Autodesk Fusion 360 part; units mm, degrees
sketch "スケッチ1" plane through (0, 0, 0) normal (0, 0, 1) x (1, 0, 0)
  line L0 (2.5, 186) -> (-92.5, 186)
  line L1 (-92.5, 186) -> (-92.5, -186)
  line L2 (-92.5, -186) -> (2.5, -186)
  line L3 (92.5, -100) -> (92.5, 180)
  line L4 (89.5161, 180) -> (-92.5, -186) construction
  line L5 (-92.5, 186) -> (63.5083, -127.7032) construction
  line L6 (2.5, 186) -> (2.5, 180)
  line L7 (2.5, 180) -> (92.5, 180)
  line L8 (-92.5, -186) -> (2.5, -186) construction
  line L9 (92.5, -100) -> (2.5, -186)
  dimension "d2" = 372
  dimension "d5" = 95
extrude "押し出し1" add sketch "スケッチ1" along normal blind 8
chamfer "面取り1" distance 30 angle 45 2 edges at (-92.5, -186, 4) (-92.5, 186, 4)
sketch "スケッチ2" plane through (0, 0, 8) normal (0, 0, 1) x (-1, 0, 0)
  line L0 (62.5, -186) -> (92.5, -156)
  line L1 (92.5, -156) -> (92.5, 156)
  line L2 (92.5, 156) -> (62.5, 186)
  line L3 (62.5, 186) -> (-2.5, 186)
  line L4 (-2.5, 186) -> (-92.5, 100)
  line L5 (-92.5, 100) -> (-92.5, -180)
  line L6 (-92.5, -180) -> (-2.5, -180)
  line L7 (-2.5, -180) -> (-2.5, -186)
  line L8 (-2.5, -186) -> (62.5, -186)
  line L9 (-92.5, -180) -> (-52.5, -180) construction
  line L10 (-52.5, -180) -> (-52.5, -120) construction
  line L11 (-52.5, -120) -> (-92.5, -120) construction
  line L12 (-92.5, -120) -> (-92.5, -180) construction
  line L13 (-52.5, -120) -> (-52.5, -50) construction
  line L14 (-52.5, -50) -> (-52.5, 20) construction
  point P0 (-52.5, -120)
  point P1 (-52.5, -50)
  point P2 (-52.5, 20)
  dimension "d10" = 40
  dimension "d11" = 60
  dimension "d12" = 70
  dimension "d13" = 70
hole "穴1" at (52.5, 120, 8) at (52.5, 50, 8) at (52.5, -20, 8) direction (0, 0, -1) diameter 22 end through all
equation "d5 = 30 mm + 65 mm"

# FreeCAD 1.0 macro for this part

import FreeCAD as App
import Part
import Sketcher

V = App.Vector


def edges_at(feature, points):
    """Names of the edges that pass closest to the given points."""
    edges = feature.Shape.Edges
    near = lambda p: min(range(len(edges)), key=lambda i: edges[i].distToShape(Part.Vertex(*p))[0])
    return sorted({f"Edge{near(p) + 1}" for p in points})


def add_polygon(sketch, points):
    """Adds a closed chain of lines whose ends are joined by coincident constraints."""
    first, n = sketch.GeometryCount, len(points)
    for a, b in zip(points, points[1:] + points[:1]):
        sketch.addGeometry(Part.LineSegment(App.Vector(*a, 0), App.Vector(*b, 0)), False)
    for i in range(n):
        sketch.addConstraint(Sketcher.Constraint("Coincident", first + i, 2, first + (i + 1) % n, 1))

doc = App.newDocument("Part")
body = doc.addObject("PartDesign::Body", "Body")

sketch1 = doc.addObject("Sketcher::SketchObject", "Sketch")
body.addObject(sketch1)
sketch1.AttachmentSupport = (doc.XY_Plane, [""])
sketch1.MapMode = "FlatFace"
add_polygon(sketch1, [(2, 180), (2, 186), (-92, 186), (-92, -186), (2, -186), (92, -100), (92, 180)])
sketch1.addConstraint(Sketcher.Constraint("Vertical", 0))
sketch1.addConstraint(Sketcher.Constraint("Horizontal", 1))
sketch1.addConstraint(Sketcher.Constraint("Vertical", 2))
sketch1.addConstraint(Sketcher.Constraint("Horizontal", 3))
sketch1.addConstraint(Sketcher.Constraint("Vertical", 5))
sketch1.addConstraint(Sketcher.Constraint("Horizontal", 6))
sketch1.addConstraint(Sketcher.Constraint("Symmetric", 0, 2, 3, 2, -1))
sketch1.addConstraint(Sketcher.Constraint("DistanceX", 1, 2, 1, 1, 95.0))
sketch1.addConstraint(Sketcher.Constraint("DistanceY", 2, 2, 2, 1, 372.0))
sketch1.addConstraint(Sketcher.Constraint("DistanceX", 6, 2, 6, 1, 90.0))
sketch1.addConstraint(Sketcher.Constraint("DistanceY", 0, 1, 0, 2, 6.0))
sketch1.addConstraint(Sketcher.Constraint("DistanceY", 5, 1, 5, 2, 280.0))
sketch1.addConstraint(Sketcher.Constraint("DistanceX", -1, 1, 0, 2, 2.5))
pad1 = doc.addObject("PartDesign::Pad", "Pad")
body.addObject(pad1)
pad1.Profile = sketch1
pad1.Length = 8
doc.recompute()

chamfer = doc.addObject("PartDesign::Chamfer", "Chamfer")
body.addObject(chamfer)
chamfer.Base = (pad1, edges_at(pad1, [(-92.5, -186, 4), (-92.5, 186, 4)]))
chamfer.Size = 30

sketch2 = doc.addObject("Sketcher::SketchObject", "Sketch001")
body.addObject(sketch2)
sketch2.AttachmentSupport = (doc.XY_Plane, [""])
sketch2.MapMode = "FlatFace"
sketch2.AttachmentOffset = App.Placement(V(0, 0, 8), App.Rotation())
sketch2.addGeometry(Part.Circle(V(52, 120, 0), V(0, 0, 1), 11), False)
sketch2.addGeometry(Part.Circle(V(52, 50, 0), V(0, 0, 1), 11), False)
sketch2.addGeometry(Part.Circle(V(52, -20, 0), V(0, 0, 1), 11), False)
sketch2.addConstraint(Sketcher.Constraint("Equal", 0, 1))
sketch2.addConstraint(Sketcher.Constraint("Equal", 1, 2))
sketch2.addConstraint(Sketcher.Constraint("Vertical", 0, 3, 1, 3))
sketch2.addConstraint(Sketcher.Constraint("Vertical", 1, 3, 2, 3))
sketch2.addConstraint(Sketcher.Constraint("Diameter", 0, 22.0))
sketch2.addConstraint(Sketcher.Constraint("DistanceY", -1, 1, 0, 3, 120.0))
sketch2.addConstraint(Sketcher.Constraint("DistanceY", -1, 1, 1, 3, 50.0))
sketch2.addConstraint(Sketcher.Constraint("DistanceY", 2, 3, -1, 1, 20.0))
sketch2.addConstraint(Sketcher.Constraint("DistanceX", -1, 1, 0, 3, 52.5))
doc.recompute()
hole = doc.addObject("PartDesign::Hole", "Hole")
body.addObject(hole)
hole.Profile = sketch2
hole.ThreadType = "None"
hole.Diameter = 22
hole.DepthType = "ThroughAll"

doc.recompute()
